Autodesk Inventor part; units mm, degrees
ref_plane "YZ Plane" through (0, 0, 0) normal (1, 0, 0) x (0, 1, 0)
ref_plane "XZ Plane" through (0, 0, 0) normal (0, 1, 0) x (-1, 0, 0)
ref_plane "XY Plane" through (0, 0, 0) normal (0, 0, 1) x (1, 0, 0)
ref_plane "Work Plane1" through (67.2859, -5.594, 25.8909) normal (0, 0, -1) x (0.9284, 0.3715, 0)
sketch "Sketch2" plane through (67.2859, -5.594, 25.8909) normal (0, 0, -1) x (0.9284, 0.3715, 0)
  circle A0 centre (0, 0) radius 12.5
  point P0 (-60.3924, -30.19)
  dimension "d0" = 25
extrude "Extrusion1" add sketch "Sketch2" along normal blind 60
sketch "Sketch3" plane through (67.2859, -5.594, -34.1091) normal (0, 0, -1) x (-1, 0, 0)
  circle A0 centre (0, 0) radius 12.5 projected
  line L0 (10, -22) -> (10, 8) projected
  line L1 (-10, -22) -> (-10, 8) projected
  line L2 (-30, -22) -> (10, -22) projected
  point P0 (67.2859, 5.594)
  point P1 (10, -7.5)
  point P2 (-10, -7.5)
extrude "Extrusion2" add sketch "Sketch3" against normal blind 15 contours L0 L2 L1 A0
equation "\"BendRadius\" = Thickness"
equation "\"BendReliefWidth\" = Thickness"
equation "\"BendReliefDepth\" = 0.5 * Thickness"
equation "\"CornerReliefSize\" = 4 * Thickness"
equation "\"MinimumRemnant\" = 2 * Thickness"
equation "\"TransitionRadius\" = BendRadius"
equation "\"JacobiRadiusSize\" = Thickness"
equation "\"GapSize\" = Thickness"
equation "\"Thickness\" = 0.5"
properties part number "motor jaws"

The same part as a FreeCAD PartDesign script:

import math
import FreeCAD as App
import Part
import Sketcher
from FreeCAD import Vector

doc = App.newDocument("Part")
body = doc.addObject("PartDesign::Body", "Body")

sketch1 = body.newObject("Sketcher::SketchObject", "Sketch")
sketch1.AttachmentSupport = (doc.getObject("XY_Plane"), [""])
sketch1.MapMode = "FlatFace"
sketch1.AttachmentOffset = App.Placement(Vector(0, 0, 25.8909), App.Rotation())
sketch1.addGeometry(Part.Circle(Vector(67, -6, 0), Vector(0, 0, 1), 12), False)
sketch1.addConstraint(Sketcher.Constraint("Diameter", 0, 25.0))
sketch1.addConstraint(Sketcher.Constraint("DistanceX", -1, 1, 0, 3, 67.286))
sketch1.addConstraint(Sketcher.Constraint("DistanceY", 0, 3, -1, 1, 5.594))
pad1 = body.newObject("PartDesign::Pad", "Pad")
pad1.Profile = sketch1
pad1.Length = 60
pad1.Reversed = True

sketch2 = body.newObject("Sketcher::SketchObject", "Sketch001")
sketch2.AttachmentSupport = (doc.getObject("XY_Plane"), [""])
sketch2.MapMode = "FlatFace"
sketch2.AttachmentOffset = App.Placement(Vector(0, 0, -34.1091), App.Rotation())
sketch2.addGeometry(Part.LineSegment(Vector(57, -28, 0), Vector(57, -13, 0)), False)
sketch2.addGeometry(Part.ArcOfCircle(Part.Circle(Vector(67, -6, 0), Vector(0, 0, 1), 12), math.radians(-143), math.radians(-37)), False)
sketch2.addGeometry(Part.LineSegment(Vector(77, -13, 0), Vector(77, -28, 0)), False)
sketch2.addGeometry(Part.LineSegment(Vector(77, -28, 0), Vector(57, -28, 0)), False)
sketch2.addConstraint(Sketcher.Constraint("Coincident", 0, 2, 1, 1))
sketch2.addConstraint(Sketcher.Constraint("Coincident", 1, 2, 2, 1))
sketch2.addConstraint(Sketcher.Constraint("Coincident", 2, 2, 3, 1))
sketch2.addConstraint(Sketcher.Constraint("Coincident", 3, 2, 0, 1))
sketch2.addConstraint(Sketcher.Constraint("Vertical", 0))
sketch2.addConstraint(Sketcher.Constraint("Vertical", 2))
sketch2.addConstraint(Sketcher.Constraint("Horizontal", 3))
sketch2.addConstraint(Sketcher.Constraint("Horizontal", 0, 2, 1, 2))
sketch2.addConstraint(Sketcher.Constraint("Radius", 1, 12.5))
sketch2.addConstraint(Sketcher.Constraint("DistanceX", 3, 2, 3, 1, 20.0))
sketch2.addConstraint(Sketcher.Constraint("DistanceY", 0, 1, 0, 2, 14.5))
sketch2.addConstraint(Sketcher.Constraint("DistanceX", -1, 1, 1, 3, 67.286))
sketch2.addConstraint(Sketcher.Constraint("DistanceY", 1, 3, -1, 1, 5.594))
pad2 = body.newObject("PartDesign::Pad", "Pad001")
pad2.Profile = sketch2
pad2.Length = 15

doc.recompute()
